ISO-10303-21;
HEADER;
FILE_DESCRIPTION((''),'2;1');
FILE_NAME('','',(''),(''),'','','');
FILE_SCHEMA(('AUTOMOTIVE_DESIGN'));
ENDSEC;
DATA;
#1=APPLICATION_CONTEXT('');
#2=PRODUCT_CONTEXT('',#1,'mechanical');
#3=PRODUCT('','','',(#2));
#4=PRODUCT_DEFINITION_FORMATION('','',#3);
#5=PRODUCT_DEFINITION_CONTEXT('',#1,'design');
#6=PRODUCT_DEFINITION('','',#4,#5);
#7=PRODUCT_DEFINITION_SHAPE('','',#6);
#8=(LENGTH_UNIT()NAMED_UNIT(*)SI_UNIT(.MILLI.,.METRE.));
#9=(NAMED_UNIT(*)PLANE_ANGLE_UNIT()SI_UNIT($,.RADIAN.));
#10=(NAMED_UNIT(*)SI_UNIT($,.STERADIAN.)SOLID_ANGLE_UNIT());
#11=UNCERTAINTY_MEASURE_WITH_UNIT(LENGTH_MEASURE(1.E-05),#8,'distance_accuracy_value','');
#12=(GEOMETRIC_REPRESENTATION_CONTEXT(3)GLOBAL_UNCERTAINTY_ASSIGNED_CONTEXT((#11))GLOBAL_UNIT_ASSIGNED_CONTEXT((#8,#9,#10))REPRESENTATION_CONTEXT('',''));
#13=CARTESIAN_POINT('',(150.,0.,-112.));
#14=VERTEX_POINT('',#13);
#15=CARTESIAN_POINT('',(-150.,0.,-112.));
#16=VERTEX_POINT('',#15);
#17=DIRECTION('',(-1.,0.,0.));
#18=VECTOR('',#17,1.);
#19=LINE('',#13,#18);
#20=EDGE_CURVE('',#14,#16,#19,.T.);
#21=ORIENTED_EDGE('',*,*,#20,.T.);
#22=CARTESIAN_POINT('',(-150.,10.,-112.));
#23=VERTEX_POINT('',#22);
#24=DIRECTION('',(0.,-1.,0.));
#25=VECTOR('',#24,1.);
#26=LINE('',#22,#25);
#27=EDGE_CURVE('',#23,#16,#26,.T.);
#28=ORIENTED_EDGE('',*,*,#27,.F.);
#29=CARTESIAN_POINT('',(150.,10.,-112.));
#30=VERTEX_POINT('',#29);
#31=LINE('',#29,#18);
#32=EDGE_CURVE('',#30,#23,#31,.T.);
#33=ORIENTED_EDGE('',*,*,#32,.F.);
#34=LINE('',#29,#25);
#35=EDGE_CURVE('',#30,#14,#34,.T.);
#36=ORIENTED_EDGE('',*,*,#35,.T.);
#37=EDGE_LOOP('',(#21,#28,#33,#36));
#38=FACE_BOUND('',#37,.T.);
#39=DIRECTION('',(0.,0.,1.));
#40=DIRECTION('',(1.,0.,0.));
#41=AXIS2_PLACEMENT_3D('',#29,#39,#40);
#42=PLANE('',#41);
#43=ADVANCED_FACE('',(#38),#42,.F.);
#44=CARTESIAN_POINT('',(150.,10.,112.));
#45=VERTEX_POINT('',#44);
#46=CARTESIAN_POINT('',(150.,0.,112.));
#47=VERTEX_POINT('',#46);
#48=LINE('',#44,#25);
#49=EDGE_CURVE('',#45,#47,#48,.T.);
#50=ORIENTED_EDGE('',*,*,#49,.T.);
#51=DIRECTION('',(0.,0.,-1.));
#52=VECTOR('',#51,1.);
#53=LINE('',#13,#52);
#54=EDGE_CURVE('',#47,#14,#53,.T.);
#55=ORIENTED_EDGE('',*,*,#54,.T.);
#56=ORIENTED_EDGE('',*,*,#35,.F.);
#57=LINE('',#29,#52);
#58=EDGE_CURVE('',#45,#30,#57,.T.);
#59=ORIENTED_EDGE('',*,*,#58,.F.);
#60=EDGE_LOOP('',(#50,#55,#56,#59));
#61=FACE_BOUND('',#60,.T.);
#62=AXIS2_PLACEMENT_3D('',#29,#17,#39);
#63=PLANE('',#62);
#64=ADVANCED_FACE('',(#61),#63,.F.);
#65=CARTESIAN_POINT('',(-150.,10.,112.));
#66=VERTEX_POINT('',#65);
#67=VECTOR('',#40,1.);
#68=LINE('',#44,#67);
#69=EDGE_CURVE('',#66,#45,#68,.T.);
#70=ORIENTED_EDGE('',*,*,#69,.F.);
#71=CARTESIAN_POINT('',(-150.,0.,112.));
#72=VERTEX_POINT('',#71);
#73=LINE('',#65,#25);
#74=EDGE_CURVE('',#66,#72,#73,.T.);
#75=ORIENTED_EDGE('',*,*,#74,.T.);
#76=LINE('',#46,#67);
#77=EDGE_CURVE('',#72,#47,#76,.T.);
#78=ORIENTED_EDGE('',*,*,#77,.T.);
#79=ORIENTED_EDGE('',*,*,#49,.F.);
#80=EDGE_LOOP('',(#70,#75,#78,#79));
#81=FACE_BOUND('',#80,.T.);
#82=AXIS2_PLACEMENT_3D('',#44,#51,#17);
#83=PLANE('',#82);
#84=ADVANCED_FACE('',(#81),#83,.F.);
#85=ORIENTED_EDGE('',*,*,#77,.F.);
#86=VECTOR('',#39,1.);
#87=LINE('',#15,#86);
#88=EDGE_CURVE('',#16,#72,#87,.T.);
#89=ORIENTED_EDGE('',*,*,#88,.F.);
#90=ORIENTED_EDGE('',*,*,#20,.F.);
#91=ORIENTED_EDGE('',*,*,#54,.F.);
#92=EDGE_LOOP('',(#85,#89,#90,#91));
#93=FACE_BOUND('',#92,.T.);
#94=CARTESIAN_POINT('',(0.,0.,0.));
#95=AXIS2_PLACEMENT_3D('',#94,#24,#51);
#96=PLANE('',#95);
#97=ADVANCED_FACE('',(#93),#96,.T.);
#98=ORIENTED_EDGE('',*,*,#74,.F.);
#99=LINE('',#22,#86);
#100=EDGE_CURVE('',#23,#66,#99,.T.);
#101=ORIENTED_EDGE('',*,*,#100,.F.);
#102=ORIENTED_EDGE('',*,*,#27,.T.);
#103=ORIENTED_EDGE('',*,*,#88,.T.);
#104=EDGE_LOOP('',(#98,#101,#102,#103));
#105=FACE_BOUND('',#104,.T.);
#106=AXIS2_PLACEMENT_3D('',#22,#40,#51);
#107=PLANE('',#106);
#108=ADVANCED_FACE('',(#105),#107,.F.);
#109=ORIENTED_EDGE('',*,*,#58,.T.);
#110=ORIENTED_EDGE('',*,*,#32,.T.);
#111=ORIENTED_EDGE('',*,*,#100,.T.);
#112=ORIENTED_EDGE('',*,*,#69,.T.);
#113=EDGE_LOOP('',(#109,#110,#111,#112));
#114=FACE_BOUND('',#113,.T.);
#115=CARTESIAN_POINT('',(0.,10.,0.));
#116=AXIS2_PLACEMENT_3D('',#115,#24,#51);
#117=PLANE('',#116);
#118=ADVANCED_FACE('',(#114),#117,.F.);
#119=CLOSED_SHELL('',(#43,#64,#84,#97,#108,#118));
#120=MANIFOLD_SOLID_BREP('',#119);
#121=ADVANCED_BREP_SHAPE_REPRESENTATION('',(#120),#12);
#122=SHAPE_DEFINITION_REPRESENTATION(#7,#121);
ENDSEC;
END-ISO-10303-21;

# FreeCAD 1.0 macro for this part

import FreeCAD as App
import Part
import Sketcher
from FreeCAD import Vector
Q = App.Units.Quantity


def add_polygon(sketch, points):
    """Adds a closed chain of lines whose ends are joined by coincident constraints."""
    first, n = sketch.GeometryCount, len(points)
    for a, b in zip(points, points[1:] + points[:1]):
        sketch.addGeometry(Part.LineSegment(App.Vector(*a, 0), App.Vector(*b, 0)), False)
    for i in range(n):
        sketch.addConstraint(Sketcher.Constraint("Coincident", first + i, 2, first + (i + 1) % n, 1))

doc = App.newDocument("Part")
body = doc.addObject("PartDesign::Body", "Body")

# Sketch on XZ plane
sketch1 = body.newObject("Sketcher::SketchObject", "Sketch")
sketch1.AttachmentSupport = (doc.getObject("XZ_Plane"), [""])
sketch1.MapMode = "FlatFace"
add_polygon(sketch1, [(-150, -112), (-150, 112), (150, 112), (150, -112)])  # lines 0-3
sketch1.addConstraint([
    Sketcher.Constraint("Vertical", 0),
    Sketcher.Constraint("Horizontal", 1),
    Sketcher.Constraint("Vertical", 2),
    Sketcher.Constraint("Horizontal", 3),
    Sketcher.Constraint("Symmetric", 0, 2, 2, 2, -1, 1),
    Sketcher.Constraint("DistanceX", 1, 1, 1, 2, Q("300 mm")),
    Sketcher.Constraint("DistanceY", 0, 1, 0, 2, Q("224 mm")),
])
pad1 = body.newObject("PartDesign::Pad", "Pad")
pad1.Profile = sketch1
pad1.Length = 10
pad1.Reversed = True

doc.recompute()
